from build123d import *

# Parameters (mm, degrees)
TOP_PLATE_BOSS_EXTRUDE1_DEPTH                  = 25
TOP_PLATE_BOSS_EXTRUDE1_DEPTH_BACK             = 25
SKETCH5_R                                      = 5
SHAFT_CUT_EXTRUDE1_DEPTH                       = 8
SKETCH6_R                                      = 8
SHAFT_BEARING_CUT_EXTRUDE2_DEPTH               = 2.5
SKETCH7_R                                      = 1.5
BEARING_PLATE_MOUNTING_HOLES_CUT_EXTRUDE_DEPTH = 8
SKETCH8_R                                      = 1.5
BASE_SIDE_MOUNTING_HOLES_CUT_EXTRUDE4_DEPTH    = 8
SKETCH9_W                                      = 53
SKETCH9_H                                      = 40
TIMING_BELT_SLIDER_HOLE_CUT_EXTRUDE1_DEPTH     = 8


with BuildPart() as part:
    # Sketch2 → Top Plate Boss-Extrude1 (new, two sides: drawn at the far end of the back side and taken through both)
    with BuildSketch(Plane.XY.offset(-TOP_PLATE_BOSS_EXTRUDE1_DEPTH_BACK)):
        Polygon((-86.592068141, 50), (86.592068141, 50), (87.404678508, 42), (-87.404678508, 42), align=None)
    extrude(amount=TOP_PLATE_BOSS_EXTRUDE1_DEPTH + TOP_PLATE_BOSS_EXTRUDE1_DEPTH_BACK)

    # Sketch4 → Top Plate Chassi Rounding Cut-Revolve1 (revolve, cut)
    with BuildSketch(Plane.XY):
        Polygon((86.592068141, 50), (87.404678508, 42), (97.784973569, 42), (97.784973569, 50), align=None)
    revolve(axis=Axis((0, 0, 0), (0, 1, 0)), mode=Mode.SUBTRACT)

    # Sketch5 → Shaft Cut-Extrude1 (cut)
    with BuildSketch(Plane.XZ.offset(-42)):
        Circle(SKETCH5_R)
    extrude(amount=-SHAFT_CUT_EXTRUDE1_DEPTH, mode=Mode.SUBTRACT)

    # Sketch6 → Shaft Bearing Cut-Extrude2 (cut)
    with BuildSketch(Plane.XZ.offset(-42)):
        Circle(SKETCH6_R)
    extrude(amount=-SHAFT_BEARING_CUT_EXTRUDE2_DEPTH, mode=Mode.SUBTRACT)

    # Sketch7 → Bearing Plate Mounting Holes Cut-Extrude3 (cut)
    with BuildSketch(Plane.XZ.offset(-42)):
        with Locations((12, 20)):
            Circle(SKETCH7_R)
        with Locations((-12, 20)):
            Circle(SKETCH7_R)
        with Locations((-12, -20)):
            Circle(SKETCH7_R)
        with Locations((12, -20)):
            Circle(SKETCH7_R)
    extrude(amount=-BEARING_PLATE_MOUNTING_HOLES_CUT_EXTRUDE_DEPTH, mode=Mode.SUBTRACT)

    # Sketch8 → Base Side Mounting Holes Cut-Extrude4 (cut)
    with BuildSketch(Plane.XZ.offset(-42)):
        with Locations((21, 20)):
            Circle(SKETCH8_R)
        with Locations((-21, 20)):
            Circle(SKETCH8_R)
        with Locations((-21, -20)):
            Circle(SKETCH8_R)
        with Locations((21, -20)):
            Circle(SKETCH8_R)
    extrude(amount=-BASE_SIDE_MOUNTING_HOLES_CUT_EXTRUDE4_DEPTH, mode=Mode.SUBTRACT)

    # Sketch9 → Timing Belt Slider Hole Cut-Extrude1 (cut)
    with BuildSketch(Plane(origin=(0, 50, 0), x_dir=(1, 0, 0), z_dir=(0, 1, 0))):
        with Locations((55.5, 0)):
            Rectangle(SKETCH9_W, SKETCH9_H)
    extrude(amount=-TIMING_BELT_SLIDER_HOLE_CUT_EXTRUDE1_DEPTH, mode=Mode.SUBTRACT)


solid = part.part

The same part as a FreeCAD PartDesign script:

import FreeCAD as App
import Part
import Sketcher
from FreeCAD import Vector
Q = App.Units.Quantity

doc = App.newDocument("Part")
body = doc.addObject("PartDesign::Body", "Body")

# Sketch on XY plane
sketch1 = body.newObject("Sketcher::SketchObject", "Sketch")
sketch1.AttachmentSupport = (doc.getObject("XY_Plane"), [""])
sketch1.MapMode = "FlatFace"
sketch1.addGeometry(Part.LineSegment(Vector(86.592068, 50, 0), Vector(-86.592068, 50, 0)), False)
sketch1.addGeometry(Part.LineSegment(Vector(-86.592068, 50, 0), Vector(-87.404679, 42, 0)), False)
sketch1.addGeometry(Part.LineSegment(Vector(-87.404679, 42, 0), Vector(87.404679, 42, 0)), False)
sketch1.addGeometry(Part.LineSegment(Vector(87.404679, 42, 0), Vector(86.592068, 50, 0)), False)
sketch1.addConstraint(Sketcher.Constraint("Coincident", 0, 2, 1, 1))
sketch1.addConstraint(Sketcher.Constraint("Coincident", 1, 2, 2, 1))
sketch1.addConstraint(Sketcher.Constraint("Coincident", 2, 2, 3, 1))
sketch1.addConstraint(Sketcher.Constraint("Coincident", 3, 2, 0, 1))
sketch1.addConstraint(Sketcher.Constraint("Horizontal", 0))
sketch1.addConstraint(Sketcher.Constraint("Horizontal", 2))
sketch1.addConstraint(Sketcher.Constraint("Equal", 1, 3))
sketch1.addConstraint(Sketcher.Constraint("DistanceY", -1, 1, 0, 2, Q("50 mm")))
sketch1.addConstraint(Sketcher.Constraint("DistanceY", -1, 1, 1, 2, Q("42 mm")))
sketch1.addConstraint(Sketcher.Constraint("Angle", 1, Q("-95.8 deg")))
sketch1.addConstraint(Sketcher.Constraint("DistanceX", 0, 2, 0, 1, Q("173.184136 mm")))
sketch1.addConstraint(Sketcher.Constraint("DistanceX", 0, 2, -1, 1, Q("86.592068 mm")))
pad1 = body.newObject("PartDesign::Pad", "Pad")
pad1.Profile = sketch1
pad1.Type = "TwoLengths"
pad1.Length = 25
pad1.Length2 = 25

# Sketch on XY plane
sketch2 = body.newObject("Sketcher::SketchObject", "Sketch001")
sketch2.AttachmentSupport = (doc.getObject("XY_Plane"), [""])
sketch2.MapMode = "FlatFace"
sketch2.addGeometry(Part.LineSegment(Vector(86.592068, 50, 0), Vector(87.404679, 42, 0)), False)
sketch2.addGeometry(Part.LineSegment(Vector(87.404679, 42, 0), Vector(97.784974, 42, 0)), False)
sketch2.addGeometry(Part.LineSegment(Vector(97.784974, 42, 0), Vector(97.784974, 50, 0)), False)
sketch2.addGeometry(Part.LineSegment(Vector(97.784974, 50, 0), Vector(86.592068, 50, 0)), False)
sketch2.addConstraint(Sketcher.Constraint("Coincident", 0, 2, 1, 1))
sketch2.addConstraint(Sketcher.Constraint("Coincident", 1, 2, 2, 1))
sketch2.addConstraint(Sketcher.Constraint("Coincident", 2, 2, 3, 1))
sketch2.addConstraint(Sketcher.Constraint("Coincident", 3, 2, 0, 1))
sketch2.addConstraint(Sketcher.Constraint("Horizontal", 1))
sketch2.addConstraint(Sketcher.Constraint("Vertical", 2))
sketch2.addConstraint(Sketcher.Constraint("Horizontal", 3))
sketch2.addConstraint(Sketcher.Constraint("DistanceY", 2, 1, 2, 2, Q("8 mm")))
sketch2.addConstraint(Sketcher.Constraint("DistanceY", -1, 1, 0, 2, Q("42 mm")))
sketch2.addConstraint(Sketcher.Constraint("Angle", 0, Q("-84.2 deg")))
sketch2.addConstraint(Sketcher.Constraint("DistanceX", 1, 1, 1, 2, Q("10.380295 mm")))
sketch2.addConstraint(Sketcher.Constraint("DistanceX", -1, 1, 0, 2, Q("87.404679 mm")))
groove = body.newObject("PartDesign::Groove", "Groove")
groove.Profile = sketch2
groove.ReferenceAxis = (sketch2, ["V_Axis"])
groove.Angle = 360

# Sketch on XZ plane
sketch3 = body.newObject("Sketcher::SketchObject", "Sketch002")
sketch3.AttachmentSupport = (doc.getObject("XZ_Plane"), [""])
sketch3.MapMode = "FlatFace"
sketch3.AttachmentOffset = App.Placement(Vector(0, 0, -42), App.Rotation())
sketch3.addGeometry(Part.Circle(Vector(0, 0, 0), Vector(0, 0, 1), 5), False)
sketch3.addConstraint(Sketcher.Constraint("Coincident", 0, 3, -1, 1))
sketch3.addConstraint(Sketcher.Constraint("Diameter", 0, Q("10 mm")))
pocket1 = body.newObject("PartDesign::Pocket", "Pocket")
pocket1.Profile = sketch3
pocket1.Length = 8

# Sketch on XZ plane
sketch4 = body.newObject("Sketcher::SketchObject", "Sketch003")
sketch4.AttachmentSupport = (doc.getObject("XZ_Plane"), [""])
sketch4.MapMode = "FlatFace"
sketch4.AttachmentOffset = App.Placement(Vector(0, 0, -42), App.Rotation())
sketch4.addGeometry(Part.Circle(Vector(0, 0, 0), Vector(0, 0, 1), 8), False)
sketch4.addConstraint(Sketcher.Constraint("Coincident", 0, 3, -1, 1))
sketch4.addConstraint(Sketcher.Constraint("Diameter", 0, Q("16 mm")))
pocket2 = body.newObject("PartDesign::Pocket", "Pocket001")
pocket2.Profile = sketch4
pocket2.Length = 2.5

# Sketch on XZ plane
sketch5 = body.newObject("Sketcher::SketchObject", "Sketch004")
sketch5.AttachmentSupport = (doc.getObject("XZ_Plane"), [""])
sketch5.MapMode = "FlatFace"
sketch5.AttachmentOffset = App.Placement(Vector(0, 0, -42), App.Rotation())
sketch5.addGeometry(Part.Circle(Vector(12, 20, 0), Vector(0, 0, 1), 1.5), False)
sketch5.addGeometry(Part.Circle(Vector(-12, 20, 0), Vector(0, 0, 1), 1.5), False)
sketch5.addGeometry(Part.Circle(Vector(-12, -20, 0), Vector(0, 0, 1), 1.5), False)
sketch5.addGeometry(Part.Circle(Vector(12, -20, 0), Vector(0, 0, 1), 1.5), False)
sketch5.addConstraint(Sketcher.Constraint("Equal", 0, 1))
sketch5.addConstraint(Sketcher.Constraint("Equal", 1, 2))
sketch5.addConstraint(Sketcher.Constraint("Equal", 2, 3))
sketch5.addConstraint(Sketcher.Constraint("Symmetric", 0, 3, 2, 3, -1, 1))
sketch5.addConstraint(Sketcher.Constraint("Symmetric", 1, 3, 3, 3, -1, 1))
sketch5.addConstraint(Sketcher.Constraint("Symmetric", 0, 3, 1, 3, -2))
sketch5.addConstraint(Sketcher.Constraint("Diameter", 0, Q("3 mm")))
sketch5.addConstraint(Sketcher.Constraint("DistanceX", -1, 1, 0, 3, Q("12 mm")))
sketch5.addConstraint(Sketcher.Constraint("DistanceY", -1, 1, 0, 3, Q("20 mm")))
pocket3 = body.newObject("PartDesign::Pocket", "Pocket002")
pocket3.Profile = sketch5
pocket3.Length = 8

# Sketch on XZ plane
sketch6 = body.newObject("Sketcher::SketchObject", "Sketch005")
sketch6.AttachmentSupport = (doc.getObject("XZ_Plane"), [""])
sketch6.MapMode = "FlatFace"
sketch6.AttachmentOffset = App.Placement(Vector(0, 0, -42), App.Rotation())
sketch6.addGeometry(Part.Circle(Vector(21, 20, 0), Vector(0, 0, 1), 1.5), False)
sketch6.addGeometry(Part.Circle(Vector(-21, 20, 0), Vector(0, 0, 1), 1.5), False)
sketch6.addGeometry(Part.Circle(Vector(-21, -20, 0), Vector(0, 0, 1), 1.5), False)
sketch6.addGeometry(Part.Circle(Vector(21, -20, 0), Vector(0, 0, 1), 1.5), False)
sketch6.addConstraint(Sketcher.Constraint("Equal", 0, 1))
sketch6.addConstraint(Sketcher.Constraint("Equal", 1, 2))
sketch6.addConstraint(Sketcher.Constraint("Equal", 2, 3))
sketch6.addConstraint(Sketcher.Constraint("Symmetric", 0, 3, 2, 3, -1, 1))
sketch6.addConstraint(Sketcher.Constraint("Symmetric", 1, 3, 3, 3, -1, 1))
sketch6.addConstraint(Sketcher.Constraint("Symmetric", 0, 3, 1, 3, -2))
sketch6.addConstraint(Sketcher.Constraint("Diameter", 0, Q("3 mm")))
sketch6.addConstraint(Sketcher.Constraint("DistanceX", -1, 1, 0, 3, Q("21 mm")))
sketch6.addConstraint(Sketcher.Constraint("DistanceY", -1, 1, 0, 3, Q("20 mm")))
pocket4 = body.newObject("PartDesign::Pocket", "Pocket003")
pocket4.Profile = sketch6
pocket4.Length = 8

# Sketch on XZ plane
sketch7 = body.newObject("Sketcher::SketchObject", "Sketch006")
sketch7.AttachmentSupport = (doc.getObject("XZ_Plane"), [""])
sketch7.MapMode = "FlatFace"
sketch7.AttachmentOffset = App.Placement(Vector(0, 0, -50), App.Rotation())
sketch7.addGeometry(Part.LineSegment(Vector(29, -20, 0), Vector(29, 20, 0)), False)
sketch7.addGeometry(Part.LineSegment(Vector(29, 20, 0), Vector(82, 20, 0)), False)
sketch7.addGeometry(Part.LineSegment(Vector(82, 20, 0), Vector(82, -20, 0)), False)
sketch7.addGeometry(Part.LineSegment(Vector(82, -20, 0), Vector(29, -20, 0)), False)
sketch7.addConstraint(Sketcher.Constraint("Coincident", 0, 2, 1, 1))
sketch7.addConstraint(Sketcher.Constraint("Coincident", 1, 2, 2, 1))
sketch7.addConstraint(Sketcher.Constraint("Coincident", 2, 2, 3, 1))
sketch7.addConstraint(Sketcher.Constraint("Coincident", 3, 2, 0, 1))
sketch7.addConstraint(Sketcher.Constraint("Vertical", 0))
sketch7.addConstraint(Sketcher.Constraint("Horizontal", 1))
sketch7.addConstraint(Sketcher.Constraint("Vertical", 2))
sketch7.addConstraint(Sketcher.Constraint("Horizontal", 3))
sketch7.addConstraint(Sketcher.Constraint("DistanceX", 1, 1, 1, 2, Q("53 mm")))
sketch7.addConstraint(Sketcher.Constraint("DistanceY", 0, 1, 0, 2, Q("40 mm")))
sketch7.addConstraint(Sketcher.Constraint("DistanceX", -1, 1, 0, 2, Q("29 mm")))
sketch7.addConstraint(Sketcher.Constraint("DistanceY", -1, 1, 0, 2, Q("20 mm")))
pocket5 = body.newObject("PartDesign::Pocket", "Pocket004")
pocket5.Profile = sketch7
pocket5.Length = 8
pocket5.Reversed = True

doc.recompute()
